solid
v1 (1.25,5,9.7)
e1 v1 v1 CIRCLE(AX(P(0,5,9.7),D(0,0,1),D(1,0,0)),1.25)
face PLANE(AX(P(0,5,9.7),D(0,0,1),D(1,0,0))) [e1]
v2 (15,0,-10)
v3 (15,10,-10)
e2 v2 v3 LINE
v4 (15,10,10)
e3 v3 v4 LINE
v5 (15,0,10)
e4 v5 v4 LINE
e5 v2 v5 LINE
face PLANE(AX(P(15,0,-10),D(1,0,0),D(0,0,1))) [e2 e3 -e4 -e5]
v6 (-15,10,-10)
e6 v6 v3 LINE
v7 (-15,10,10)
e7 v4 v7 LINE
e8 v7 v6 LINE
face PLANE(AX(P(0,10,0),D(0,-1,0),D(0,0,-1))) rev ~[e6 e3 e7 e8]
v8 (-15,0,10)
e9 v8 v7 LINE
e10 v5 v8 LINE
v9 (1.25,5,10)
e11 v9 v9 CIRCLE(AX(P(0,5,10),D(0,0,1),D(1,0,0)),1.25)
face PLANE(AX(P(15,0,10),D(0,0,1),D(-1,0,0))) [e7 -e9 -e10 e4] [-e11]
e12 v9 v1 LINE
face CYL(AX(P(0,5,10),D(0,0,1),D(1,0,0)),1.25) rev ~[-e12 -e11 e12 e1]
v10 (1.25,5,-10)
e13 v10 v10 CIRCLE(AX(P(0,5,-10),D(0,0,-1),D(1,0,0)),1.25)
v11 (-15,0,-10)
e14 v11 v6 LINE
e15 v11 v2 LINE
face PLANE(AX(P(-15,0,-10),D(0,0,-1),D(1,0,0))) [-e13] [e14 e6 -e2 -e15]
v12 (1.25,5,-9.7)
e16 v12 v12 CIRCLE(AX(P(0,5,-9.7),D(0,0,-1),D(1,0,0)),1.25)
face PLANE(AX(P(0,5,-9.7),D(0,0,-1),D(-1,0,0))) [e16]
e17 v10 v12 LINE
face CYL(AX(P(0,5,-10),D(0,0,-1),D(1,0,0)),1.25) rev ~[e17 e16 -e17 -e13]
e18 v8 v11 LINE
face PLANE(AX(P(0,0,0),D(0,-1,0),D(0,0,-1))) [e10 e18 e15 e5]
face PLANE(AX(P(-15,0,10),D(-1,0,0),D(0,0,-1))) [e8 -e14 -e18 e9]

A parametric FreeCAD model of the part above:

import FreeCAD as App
import Part
import Sketcher
Q = App.Units.Quantity

doc = App.newDocument("Part")
params = doc.addObject("Spreadsheet::Sheet", "Params")
for row, (alias, value) in enumerate([
    ("sketch1_width", "30 mm"),
    ("sketch1_height", "20 mm"),
    ("pad1_length", "10 mm"),
    ("sketch2_diameter", "2.5 mm"),
    ("pocket1_length", "0.6 mm"),
    ("sketch3_diameter", "2.5 mm"),
    ("pocket2_length", "0.6 mm"),
], start=1):
    params.set(f"A{row}", alias)
    params.set(f"B{row}", "=" + value)
    params.setAlias(f"B{row}", alias)

body = doc.addObject("PartDesign::Body", "Body")

# Sketch on XZ plane
sketch1 = doc.addObject("Sketcher::SketchObject", "Sketch")
body.addObject(sketch1)
sketch1.AttachmentSupport = (doc.XZ_Plane, [""])
sketch1.MapMode = "FlatFace"
sketch1.addGeometry([
    Part.LineSegment(App.Vector(15, 10, 0), App.Vector(-15, 10, 0)),
    Part.LineSegment(App.Vector(-15, 10, 0), App.Vector(-15, -10, 0)),
    Part.LineSegment(App.Vector(-15, -10, 0), App.Vector(15, -10, 0)),
    Part.LineSegment(App.Vector(15, -10, 0), App.Vector(15, 10, 0)),
], False)
sketch1.addConstraint([
    Sketcher.Constraint("Coincident", 0, 2, 1, 1),
    Sketcher.Constraint("Coincident", 1, 2, 2, 1),
    Sketcher.Constraint("Coincident", 2, 2, 3, 1),
    Sketcher.Constraint("Coincident", 3, 2, 0, 1),
    Sketcher.Constraint("Horizontal", 0),
    Sketcher.Constraint("Vertical", 1),
    Sketcher.Constraint("Horizontal", 2),
    Sketcher.Constraint("Vertical", 3),
    Sketcher.Constraint("Symmetric", 0, 2, 2, 2, -1, 1),
    Sketcher.Constraint("DistanceX", 0, 2, 0, 1, Q("30 mm")),
    Sketcher.Constraint("DistanceY", 1, 2, 1, 1, Q("20 mm")),
])
sketch1.setExpression("Constraints[9]", "Params.sketch1_width")
sketch1.setExpression("Constraints[10]", "Params.sketch1_height")
pad1 = doc.addObject("PartDesign::Pad", "Pad")
body.addObject(pad1)
pad1.Profile = sketch1
pad1.setExpression("Length", "Params.pad1_length")
pad1.Reversed = True

# Sketch on XY plane
sketch2 = doc.addObject("Sketcher::SketchObject", "Sketch001")
body.addObject(sketch2)
sketch2.AttachmentSupport = (doc.XY_Plane, [""])
sketch2.MapMode = "FlatFace"
sketch2.AttachmentOffset = App.Placement(App.Vector(0, 0, -10), App.Rotation())
sketch2.addGeometry(Part.Circle(App.Vector(0, 5, 0), App.Vector(0, 0, 1), 1.25), False)
sketch2.addConstraint([
    Sketcher.Constraint("PointOnObject", 0, 3, -2),
    Sketcher.Constraint("Diameter", 0, Q("2.5 mm")),
    Sketcher.Constraint("DistanceY", -1, 1, 0, 3, Q("5 mm")),
])
sketch2.setExpression("Constraints[1]", "Params.sketch2_diameter")
pocket1 = doc.addObject("PartDesign::Pocket", "Pocket")
body.addObject(pocket1)
pocket1.Profile = sketch2
pocket1.setExpression("Length", "Params.pocket1_length")
pocket1.Midplane = True

# Sketch on XY plane
sketch3 = doc.addObject("Sketcher::SketchObject", "Sketch002")
body.addObject(sketch3)
sketch3.AttachmentSupport = (doc.XY_Plane, [""])
sketch3.MapMode = "FlatFace"
sketch3.AttachmentOffset = App.Placement(App.Vector(0, 0, 10), App.Rotation())
sketch3.addGeometry(Part.Circle(App.Vector(0, 5, 0), App.Vector(0, 0, 1), 1.25), False)
sketch3.addConstraint([
    Sketcher.Constraint("PointOnObject", 0, 3, -2),
    Sketcher.Constraint("Diameter", 0, Q("2.5 mm")),
    Sketcher.Constraint("DistanceY", -1, 1, 0, 3, Q("5 mm")),
])
sketch3.setExpression("Constraints[1]", "Params.sketch3_diameter")
pocket2 = doc.addObject("PartDesign::Pocket", "Pocket001")
body.addObject(pocket2)
pocket2.Profile = sketch3
pocket2.setExpression("Length", "Params.pocket2_length")
pocket2.Midplane = True

doc.recompute()
